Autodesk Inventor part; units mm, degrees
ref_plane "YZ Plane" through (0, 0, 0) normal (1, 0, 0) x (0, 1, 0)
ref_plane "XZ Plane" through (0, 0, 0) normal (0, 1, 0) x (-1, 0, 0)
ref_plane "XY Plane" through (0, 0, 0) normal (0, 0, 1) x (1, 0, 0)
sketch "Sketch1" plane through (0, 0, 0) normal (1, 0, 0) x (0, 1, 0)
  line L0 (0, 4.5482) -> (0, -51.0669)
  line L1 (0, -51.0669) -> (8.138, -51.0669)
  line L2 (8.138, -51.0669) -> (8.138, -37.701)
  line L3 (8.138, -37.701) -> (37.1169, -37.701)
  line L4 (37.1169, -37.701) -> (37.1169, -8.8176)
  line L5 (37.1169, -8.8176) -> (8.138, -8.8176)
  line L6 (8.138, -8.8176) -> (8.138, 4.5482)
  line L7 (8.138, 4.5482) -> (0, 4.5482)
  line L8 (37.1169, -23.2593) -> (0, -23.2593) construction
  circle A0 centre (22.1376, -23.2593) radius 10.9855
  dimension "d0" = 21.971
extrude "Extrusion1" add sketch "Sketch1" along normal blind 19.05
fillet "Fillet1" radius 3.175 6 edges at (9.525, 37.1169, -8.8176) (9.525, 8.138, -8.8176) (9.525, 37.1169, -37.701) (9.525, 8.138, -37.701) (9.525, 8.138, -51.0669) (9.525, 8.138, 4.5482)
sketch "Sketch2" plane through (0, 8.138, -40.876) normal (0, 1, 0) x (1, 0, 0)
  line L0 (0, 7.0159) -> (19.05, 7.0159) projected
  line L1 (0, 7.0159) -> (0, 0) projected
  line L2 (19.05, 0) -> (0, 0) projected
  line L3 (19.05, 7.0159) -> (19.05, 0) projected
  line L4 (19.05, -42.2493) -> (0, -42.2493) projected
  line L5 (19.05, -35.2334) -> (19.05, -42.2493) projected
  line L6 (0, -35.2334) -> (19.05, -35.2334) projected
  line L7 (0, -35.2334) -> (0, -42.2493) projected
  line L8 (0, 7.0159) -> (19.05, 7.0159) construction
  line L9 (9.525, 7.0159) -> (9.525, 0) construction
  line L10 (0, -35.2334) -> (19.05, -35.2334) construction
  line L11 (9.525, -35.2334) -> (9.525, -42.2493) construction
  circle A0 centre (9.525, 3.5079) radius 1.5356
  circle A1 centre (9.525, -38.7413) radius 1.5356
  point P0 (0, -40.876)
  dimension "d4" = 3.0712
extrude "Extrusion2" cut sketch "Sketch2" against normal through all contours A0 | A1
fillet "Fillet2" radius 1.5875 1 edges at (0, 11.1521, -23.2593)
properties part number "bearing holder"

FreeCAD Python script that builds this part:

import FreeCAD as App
import Part
import Sketcher

V = App.Vector
Q = App.Units.Quantity


def edges_at(feature, points):
    """Names of the edges that pass closest to the given points."""
    edges = feature.Shape.Edges
    near = lambda p: min(range(len(edges)), key=lambda i: edges[i].distToShape(Part.Vertex(*p))[0])
    return sorted({f"Edge{near(p) + 1}" for p in points})

doc = App.newDocument("Part")
body = doc.addObject("PartDesign::Body", "Body")

# Sketch on YZ plane
sketch1 = doc.addObject("Sketcher::SketchObject", "Sketch")
body.addObject(sketch1)
sketch1.AttachmentSupport = (doc.YZ_Plane, [""])
sketch1.MapMode = "FlatFace"
sketch1.addGeometry(Part.LineSegment(V(8.138, 4.5482, 0), V(0, 4.5482, 0)), False)
sketch1.addGeometry(Part.LineSegment(V(0, 4.5482, 0), V(0, -51.0669, 0)), False)
sketch1.addGeometry(Part.LineSegment(V(0, -51.0669, 0), V(8.138, -51.0669, 0)), False)
sketch1.addGeometry(Part.LineSegment(V(8.138, -51.0669, 0), V(8.138, -37.701, 0)), False)
sketch1.addGeometry(Part.LineSegment(V(8.138, -37.701, 0), V(37.1169, -37.701, 0)), False)
sketch1.addGeometry(Part.LineSegment(V(37.1169, -37.701, 0), V(37.1169, -8.8176, 0)), False)
sketch1.addGeometry(Part.LineSegment(V(37.1169, -8.8176, 0), V(8.138, -8.8176, 0)), False)
sketch1.addGeometry(Part.LineSegment(V(8.138, -8.8176, 0), V(8.138, 4.5482, 0)), False)
sketch1.addGeometry(Part.Circle(V(22.1376, -23.2593, 0), V(0, 0, 1), 10.9855), False)
sketch1.addConstraint(Sketcher.Constraint("Coincident", 0, 2, 1, 1))
sketch1.addConstraint(Sketcher.Constraint("Coincident", 1, 2, 2, 1))
sketch1.addConstraint(Sketcher.Constraint("Coincident", 2, 2, 3, 1))
sketch1.addConstraint(Sketcher.Constraint("Coincident", 3, 2, 4, 1))
sketch1.addConstraint(Sketcher.Constraint("Coincident", 4, 2, 5, 1))
sketch1.addConstraint(Sketcher.Constraint("Coincident", 5, 2, 6, 1))
sketch1.addConstraint(Sketcher.Constraint("Coincident", 6, 2, 7, 1))
sketch1.addConstraint(Sketcher.Constraint("Coincident", 7, 2, 0, 1))
sketch1.addConstraint(Sketcher.Constraint("Horizontal", 0))
sketch1.addConstraint(Sketcher.Constraint("Vertical", 1))
sketch1.addConstraint(Sketcher.Constraint("Horizontal", 2))
sketch1.addConstraint(Sketcher.Constraint("Vertical", 3))
sketch1.addConstraint(Sketcher.Constraint("Horizontal", 4))
sketch1.addConstraint(Sketcher.Constraint("Vertical", 5))
sketch1.addConstraint(Sketcher.Constraint("Horizontal", 6))
sketch1.addConstraint(Sketcher.Constraint("Vertical", 7))
sketch1.addConstraint(Sketcher.Constraint("PointOnObject", 0, 2, -2))
sketch1.addConstraint(Sketcher.Constraint("Vertical", 3, 2, 6, 2))
sketch1.addConstraint(Sketcher.Constraint("Equal", 3, 7))
sketch1.addConstraint(Sketcher.Constraint("Diameter", 8, Q("0.865 in")))
sketch1.addConstraint(Sketcher.Constraint("DistanceX", 0, 2, 0, 1, Q("0.3204 in")))
sketch1.addConstraint(Sketcher.Constraint("DistanceX", 4, 1, 4, 2, Q("1.1409 in")))
sketch1.addConstraint(Sketcher.Constraint("DistanceY", 1, 2, 1, 1, 55.615))
sketch1.addConstraint(Sketcher.Constraint("DistanceY", 3, 1, 3, 2, 13.366))
sketch1.addConstraint(Sketcher.Constraint("DistanceY", 1, 2, -1, 1, Q("2.0105 in")))
sketch1.addConstraint(Sketcher.Constraint("DistanceX", -1, 1, 8, 3, 22.1376))
sketch1.addConstraint(Sketcher.Constraint("DistanceY", 8, 3, -1, 1, 23.2593))
pad1 = doc.addObject("PartDesign::Pad", "Pad")
body.addObject(pad1)
pad1.Profile = sketch1
pad1.Length = Q("0.75 in")
doc.recompute()

fillet = doc.addObject("PartDesign::Fillet", "Fillet")
body.addObject(fillet)
fillet.Base = (pad1, edges_at(pad1, [
    (9.525, 37.117, -8.818),
    (9.525, 8.138, -8.818),
    (9.525, 37.117, -37.701),
    (9.525, 8.138, -37.701),
    (9.525, 8.138, -51.067),
    (9.525, 8.138, 4.548),
]))
fillet.Radius = Q("0.125 in")

# Sketch on XZ plane
sketch2 = doc.addObject("Sketcher::SketchObject", "Sketch001")
body.addObject(sketch2)
sketch2.AttachmentSupport = (doc.XZ_Plane, [""])
sketch2.MapMode = "FlatFace"
sketch2.AttachmentOffset = App.Placement(V(0, 0, -0.3203937 * 25.4), App.Rotation())
sketch2.addGeometry(Part.Circle(V(9.525, -44.3839, 0), V(0, 0, 1), 1.5356), False)
sketch2.addGeometry(Part.Circle(V(9.525, -2.1347, 0), V(0, 0, 1), 1.5356), False)
sketch2.addConstraint(Sketcher.Constraint("Equal", 0, 1))
sketch2.addConstraint(Sketcher.Constraint("Vertical", 0, 3, 1, 3))
sketch2.addConstraint(Sketcher.Constraint("Diameter", 0, 3.0712))
sketch2.addConstraint(Sketcher.Constraint("DistanceX", -1, 1, 0, 3, Q("0.375 in")))
sketch2.addConstraint(Sketcher.Constraint("DistanceY", 0, 3, -1, 1, Q("1.7474 in")))
sketch2.addConstraint(Sketcher.Constraint("DistanceY", 1, 3, -1, 1, 2.1347))
pocket1 = doc.addObject("PartDesign::Pocket", "Pocket")
body.addObject(pocket1)
pocket1.Profile = sketch2
pocket1.Type = "ThroughAll"
pocket1.Reversed = True
doc.recompute()

fillet2 = doc.addObject("PartDesign::Fillet", "Fillet001")
body.addObject(fillet2)
fillet2.Base = (pocket1, edges_at(pocket1, [(0, 11.152, -23.259)]))
fillet2.Radius = Q("0.0625 in")

doc.recompute()
